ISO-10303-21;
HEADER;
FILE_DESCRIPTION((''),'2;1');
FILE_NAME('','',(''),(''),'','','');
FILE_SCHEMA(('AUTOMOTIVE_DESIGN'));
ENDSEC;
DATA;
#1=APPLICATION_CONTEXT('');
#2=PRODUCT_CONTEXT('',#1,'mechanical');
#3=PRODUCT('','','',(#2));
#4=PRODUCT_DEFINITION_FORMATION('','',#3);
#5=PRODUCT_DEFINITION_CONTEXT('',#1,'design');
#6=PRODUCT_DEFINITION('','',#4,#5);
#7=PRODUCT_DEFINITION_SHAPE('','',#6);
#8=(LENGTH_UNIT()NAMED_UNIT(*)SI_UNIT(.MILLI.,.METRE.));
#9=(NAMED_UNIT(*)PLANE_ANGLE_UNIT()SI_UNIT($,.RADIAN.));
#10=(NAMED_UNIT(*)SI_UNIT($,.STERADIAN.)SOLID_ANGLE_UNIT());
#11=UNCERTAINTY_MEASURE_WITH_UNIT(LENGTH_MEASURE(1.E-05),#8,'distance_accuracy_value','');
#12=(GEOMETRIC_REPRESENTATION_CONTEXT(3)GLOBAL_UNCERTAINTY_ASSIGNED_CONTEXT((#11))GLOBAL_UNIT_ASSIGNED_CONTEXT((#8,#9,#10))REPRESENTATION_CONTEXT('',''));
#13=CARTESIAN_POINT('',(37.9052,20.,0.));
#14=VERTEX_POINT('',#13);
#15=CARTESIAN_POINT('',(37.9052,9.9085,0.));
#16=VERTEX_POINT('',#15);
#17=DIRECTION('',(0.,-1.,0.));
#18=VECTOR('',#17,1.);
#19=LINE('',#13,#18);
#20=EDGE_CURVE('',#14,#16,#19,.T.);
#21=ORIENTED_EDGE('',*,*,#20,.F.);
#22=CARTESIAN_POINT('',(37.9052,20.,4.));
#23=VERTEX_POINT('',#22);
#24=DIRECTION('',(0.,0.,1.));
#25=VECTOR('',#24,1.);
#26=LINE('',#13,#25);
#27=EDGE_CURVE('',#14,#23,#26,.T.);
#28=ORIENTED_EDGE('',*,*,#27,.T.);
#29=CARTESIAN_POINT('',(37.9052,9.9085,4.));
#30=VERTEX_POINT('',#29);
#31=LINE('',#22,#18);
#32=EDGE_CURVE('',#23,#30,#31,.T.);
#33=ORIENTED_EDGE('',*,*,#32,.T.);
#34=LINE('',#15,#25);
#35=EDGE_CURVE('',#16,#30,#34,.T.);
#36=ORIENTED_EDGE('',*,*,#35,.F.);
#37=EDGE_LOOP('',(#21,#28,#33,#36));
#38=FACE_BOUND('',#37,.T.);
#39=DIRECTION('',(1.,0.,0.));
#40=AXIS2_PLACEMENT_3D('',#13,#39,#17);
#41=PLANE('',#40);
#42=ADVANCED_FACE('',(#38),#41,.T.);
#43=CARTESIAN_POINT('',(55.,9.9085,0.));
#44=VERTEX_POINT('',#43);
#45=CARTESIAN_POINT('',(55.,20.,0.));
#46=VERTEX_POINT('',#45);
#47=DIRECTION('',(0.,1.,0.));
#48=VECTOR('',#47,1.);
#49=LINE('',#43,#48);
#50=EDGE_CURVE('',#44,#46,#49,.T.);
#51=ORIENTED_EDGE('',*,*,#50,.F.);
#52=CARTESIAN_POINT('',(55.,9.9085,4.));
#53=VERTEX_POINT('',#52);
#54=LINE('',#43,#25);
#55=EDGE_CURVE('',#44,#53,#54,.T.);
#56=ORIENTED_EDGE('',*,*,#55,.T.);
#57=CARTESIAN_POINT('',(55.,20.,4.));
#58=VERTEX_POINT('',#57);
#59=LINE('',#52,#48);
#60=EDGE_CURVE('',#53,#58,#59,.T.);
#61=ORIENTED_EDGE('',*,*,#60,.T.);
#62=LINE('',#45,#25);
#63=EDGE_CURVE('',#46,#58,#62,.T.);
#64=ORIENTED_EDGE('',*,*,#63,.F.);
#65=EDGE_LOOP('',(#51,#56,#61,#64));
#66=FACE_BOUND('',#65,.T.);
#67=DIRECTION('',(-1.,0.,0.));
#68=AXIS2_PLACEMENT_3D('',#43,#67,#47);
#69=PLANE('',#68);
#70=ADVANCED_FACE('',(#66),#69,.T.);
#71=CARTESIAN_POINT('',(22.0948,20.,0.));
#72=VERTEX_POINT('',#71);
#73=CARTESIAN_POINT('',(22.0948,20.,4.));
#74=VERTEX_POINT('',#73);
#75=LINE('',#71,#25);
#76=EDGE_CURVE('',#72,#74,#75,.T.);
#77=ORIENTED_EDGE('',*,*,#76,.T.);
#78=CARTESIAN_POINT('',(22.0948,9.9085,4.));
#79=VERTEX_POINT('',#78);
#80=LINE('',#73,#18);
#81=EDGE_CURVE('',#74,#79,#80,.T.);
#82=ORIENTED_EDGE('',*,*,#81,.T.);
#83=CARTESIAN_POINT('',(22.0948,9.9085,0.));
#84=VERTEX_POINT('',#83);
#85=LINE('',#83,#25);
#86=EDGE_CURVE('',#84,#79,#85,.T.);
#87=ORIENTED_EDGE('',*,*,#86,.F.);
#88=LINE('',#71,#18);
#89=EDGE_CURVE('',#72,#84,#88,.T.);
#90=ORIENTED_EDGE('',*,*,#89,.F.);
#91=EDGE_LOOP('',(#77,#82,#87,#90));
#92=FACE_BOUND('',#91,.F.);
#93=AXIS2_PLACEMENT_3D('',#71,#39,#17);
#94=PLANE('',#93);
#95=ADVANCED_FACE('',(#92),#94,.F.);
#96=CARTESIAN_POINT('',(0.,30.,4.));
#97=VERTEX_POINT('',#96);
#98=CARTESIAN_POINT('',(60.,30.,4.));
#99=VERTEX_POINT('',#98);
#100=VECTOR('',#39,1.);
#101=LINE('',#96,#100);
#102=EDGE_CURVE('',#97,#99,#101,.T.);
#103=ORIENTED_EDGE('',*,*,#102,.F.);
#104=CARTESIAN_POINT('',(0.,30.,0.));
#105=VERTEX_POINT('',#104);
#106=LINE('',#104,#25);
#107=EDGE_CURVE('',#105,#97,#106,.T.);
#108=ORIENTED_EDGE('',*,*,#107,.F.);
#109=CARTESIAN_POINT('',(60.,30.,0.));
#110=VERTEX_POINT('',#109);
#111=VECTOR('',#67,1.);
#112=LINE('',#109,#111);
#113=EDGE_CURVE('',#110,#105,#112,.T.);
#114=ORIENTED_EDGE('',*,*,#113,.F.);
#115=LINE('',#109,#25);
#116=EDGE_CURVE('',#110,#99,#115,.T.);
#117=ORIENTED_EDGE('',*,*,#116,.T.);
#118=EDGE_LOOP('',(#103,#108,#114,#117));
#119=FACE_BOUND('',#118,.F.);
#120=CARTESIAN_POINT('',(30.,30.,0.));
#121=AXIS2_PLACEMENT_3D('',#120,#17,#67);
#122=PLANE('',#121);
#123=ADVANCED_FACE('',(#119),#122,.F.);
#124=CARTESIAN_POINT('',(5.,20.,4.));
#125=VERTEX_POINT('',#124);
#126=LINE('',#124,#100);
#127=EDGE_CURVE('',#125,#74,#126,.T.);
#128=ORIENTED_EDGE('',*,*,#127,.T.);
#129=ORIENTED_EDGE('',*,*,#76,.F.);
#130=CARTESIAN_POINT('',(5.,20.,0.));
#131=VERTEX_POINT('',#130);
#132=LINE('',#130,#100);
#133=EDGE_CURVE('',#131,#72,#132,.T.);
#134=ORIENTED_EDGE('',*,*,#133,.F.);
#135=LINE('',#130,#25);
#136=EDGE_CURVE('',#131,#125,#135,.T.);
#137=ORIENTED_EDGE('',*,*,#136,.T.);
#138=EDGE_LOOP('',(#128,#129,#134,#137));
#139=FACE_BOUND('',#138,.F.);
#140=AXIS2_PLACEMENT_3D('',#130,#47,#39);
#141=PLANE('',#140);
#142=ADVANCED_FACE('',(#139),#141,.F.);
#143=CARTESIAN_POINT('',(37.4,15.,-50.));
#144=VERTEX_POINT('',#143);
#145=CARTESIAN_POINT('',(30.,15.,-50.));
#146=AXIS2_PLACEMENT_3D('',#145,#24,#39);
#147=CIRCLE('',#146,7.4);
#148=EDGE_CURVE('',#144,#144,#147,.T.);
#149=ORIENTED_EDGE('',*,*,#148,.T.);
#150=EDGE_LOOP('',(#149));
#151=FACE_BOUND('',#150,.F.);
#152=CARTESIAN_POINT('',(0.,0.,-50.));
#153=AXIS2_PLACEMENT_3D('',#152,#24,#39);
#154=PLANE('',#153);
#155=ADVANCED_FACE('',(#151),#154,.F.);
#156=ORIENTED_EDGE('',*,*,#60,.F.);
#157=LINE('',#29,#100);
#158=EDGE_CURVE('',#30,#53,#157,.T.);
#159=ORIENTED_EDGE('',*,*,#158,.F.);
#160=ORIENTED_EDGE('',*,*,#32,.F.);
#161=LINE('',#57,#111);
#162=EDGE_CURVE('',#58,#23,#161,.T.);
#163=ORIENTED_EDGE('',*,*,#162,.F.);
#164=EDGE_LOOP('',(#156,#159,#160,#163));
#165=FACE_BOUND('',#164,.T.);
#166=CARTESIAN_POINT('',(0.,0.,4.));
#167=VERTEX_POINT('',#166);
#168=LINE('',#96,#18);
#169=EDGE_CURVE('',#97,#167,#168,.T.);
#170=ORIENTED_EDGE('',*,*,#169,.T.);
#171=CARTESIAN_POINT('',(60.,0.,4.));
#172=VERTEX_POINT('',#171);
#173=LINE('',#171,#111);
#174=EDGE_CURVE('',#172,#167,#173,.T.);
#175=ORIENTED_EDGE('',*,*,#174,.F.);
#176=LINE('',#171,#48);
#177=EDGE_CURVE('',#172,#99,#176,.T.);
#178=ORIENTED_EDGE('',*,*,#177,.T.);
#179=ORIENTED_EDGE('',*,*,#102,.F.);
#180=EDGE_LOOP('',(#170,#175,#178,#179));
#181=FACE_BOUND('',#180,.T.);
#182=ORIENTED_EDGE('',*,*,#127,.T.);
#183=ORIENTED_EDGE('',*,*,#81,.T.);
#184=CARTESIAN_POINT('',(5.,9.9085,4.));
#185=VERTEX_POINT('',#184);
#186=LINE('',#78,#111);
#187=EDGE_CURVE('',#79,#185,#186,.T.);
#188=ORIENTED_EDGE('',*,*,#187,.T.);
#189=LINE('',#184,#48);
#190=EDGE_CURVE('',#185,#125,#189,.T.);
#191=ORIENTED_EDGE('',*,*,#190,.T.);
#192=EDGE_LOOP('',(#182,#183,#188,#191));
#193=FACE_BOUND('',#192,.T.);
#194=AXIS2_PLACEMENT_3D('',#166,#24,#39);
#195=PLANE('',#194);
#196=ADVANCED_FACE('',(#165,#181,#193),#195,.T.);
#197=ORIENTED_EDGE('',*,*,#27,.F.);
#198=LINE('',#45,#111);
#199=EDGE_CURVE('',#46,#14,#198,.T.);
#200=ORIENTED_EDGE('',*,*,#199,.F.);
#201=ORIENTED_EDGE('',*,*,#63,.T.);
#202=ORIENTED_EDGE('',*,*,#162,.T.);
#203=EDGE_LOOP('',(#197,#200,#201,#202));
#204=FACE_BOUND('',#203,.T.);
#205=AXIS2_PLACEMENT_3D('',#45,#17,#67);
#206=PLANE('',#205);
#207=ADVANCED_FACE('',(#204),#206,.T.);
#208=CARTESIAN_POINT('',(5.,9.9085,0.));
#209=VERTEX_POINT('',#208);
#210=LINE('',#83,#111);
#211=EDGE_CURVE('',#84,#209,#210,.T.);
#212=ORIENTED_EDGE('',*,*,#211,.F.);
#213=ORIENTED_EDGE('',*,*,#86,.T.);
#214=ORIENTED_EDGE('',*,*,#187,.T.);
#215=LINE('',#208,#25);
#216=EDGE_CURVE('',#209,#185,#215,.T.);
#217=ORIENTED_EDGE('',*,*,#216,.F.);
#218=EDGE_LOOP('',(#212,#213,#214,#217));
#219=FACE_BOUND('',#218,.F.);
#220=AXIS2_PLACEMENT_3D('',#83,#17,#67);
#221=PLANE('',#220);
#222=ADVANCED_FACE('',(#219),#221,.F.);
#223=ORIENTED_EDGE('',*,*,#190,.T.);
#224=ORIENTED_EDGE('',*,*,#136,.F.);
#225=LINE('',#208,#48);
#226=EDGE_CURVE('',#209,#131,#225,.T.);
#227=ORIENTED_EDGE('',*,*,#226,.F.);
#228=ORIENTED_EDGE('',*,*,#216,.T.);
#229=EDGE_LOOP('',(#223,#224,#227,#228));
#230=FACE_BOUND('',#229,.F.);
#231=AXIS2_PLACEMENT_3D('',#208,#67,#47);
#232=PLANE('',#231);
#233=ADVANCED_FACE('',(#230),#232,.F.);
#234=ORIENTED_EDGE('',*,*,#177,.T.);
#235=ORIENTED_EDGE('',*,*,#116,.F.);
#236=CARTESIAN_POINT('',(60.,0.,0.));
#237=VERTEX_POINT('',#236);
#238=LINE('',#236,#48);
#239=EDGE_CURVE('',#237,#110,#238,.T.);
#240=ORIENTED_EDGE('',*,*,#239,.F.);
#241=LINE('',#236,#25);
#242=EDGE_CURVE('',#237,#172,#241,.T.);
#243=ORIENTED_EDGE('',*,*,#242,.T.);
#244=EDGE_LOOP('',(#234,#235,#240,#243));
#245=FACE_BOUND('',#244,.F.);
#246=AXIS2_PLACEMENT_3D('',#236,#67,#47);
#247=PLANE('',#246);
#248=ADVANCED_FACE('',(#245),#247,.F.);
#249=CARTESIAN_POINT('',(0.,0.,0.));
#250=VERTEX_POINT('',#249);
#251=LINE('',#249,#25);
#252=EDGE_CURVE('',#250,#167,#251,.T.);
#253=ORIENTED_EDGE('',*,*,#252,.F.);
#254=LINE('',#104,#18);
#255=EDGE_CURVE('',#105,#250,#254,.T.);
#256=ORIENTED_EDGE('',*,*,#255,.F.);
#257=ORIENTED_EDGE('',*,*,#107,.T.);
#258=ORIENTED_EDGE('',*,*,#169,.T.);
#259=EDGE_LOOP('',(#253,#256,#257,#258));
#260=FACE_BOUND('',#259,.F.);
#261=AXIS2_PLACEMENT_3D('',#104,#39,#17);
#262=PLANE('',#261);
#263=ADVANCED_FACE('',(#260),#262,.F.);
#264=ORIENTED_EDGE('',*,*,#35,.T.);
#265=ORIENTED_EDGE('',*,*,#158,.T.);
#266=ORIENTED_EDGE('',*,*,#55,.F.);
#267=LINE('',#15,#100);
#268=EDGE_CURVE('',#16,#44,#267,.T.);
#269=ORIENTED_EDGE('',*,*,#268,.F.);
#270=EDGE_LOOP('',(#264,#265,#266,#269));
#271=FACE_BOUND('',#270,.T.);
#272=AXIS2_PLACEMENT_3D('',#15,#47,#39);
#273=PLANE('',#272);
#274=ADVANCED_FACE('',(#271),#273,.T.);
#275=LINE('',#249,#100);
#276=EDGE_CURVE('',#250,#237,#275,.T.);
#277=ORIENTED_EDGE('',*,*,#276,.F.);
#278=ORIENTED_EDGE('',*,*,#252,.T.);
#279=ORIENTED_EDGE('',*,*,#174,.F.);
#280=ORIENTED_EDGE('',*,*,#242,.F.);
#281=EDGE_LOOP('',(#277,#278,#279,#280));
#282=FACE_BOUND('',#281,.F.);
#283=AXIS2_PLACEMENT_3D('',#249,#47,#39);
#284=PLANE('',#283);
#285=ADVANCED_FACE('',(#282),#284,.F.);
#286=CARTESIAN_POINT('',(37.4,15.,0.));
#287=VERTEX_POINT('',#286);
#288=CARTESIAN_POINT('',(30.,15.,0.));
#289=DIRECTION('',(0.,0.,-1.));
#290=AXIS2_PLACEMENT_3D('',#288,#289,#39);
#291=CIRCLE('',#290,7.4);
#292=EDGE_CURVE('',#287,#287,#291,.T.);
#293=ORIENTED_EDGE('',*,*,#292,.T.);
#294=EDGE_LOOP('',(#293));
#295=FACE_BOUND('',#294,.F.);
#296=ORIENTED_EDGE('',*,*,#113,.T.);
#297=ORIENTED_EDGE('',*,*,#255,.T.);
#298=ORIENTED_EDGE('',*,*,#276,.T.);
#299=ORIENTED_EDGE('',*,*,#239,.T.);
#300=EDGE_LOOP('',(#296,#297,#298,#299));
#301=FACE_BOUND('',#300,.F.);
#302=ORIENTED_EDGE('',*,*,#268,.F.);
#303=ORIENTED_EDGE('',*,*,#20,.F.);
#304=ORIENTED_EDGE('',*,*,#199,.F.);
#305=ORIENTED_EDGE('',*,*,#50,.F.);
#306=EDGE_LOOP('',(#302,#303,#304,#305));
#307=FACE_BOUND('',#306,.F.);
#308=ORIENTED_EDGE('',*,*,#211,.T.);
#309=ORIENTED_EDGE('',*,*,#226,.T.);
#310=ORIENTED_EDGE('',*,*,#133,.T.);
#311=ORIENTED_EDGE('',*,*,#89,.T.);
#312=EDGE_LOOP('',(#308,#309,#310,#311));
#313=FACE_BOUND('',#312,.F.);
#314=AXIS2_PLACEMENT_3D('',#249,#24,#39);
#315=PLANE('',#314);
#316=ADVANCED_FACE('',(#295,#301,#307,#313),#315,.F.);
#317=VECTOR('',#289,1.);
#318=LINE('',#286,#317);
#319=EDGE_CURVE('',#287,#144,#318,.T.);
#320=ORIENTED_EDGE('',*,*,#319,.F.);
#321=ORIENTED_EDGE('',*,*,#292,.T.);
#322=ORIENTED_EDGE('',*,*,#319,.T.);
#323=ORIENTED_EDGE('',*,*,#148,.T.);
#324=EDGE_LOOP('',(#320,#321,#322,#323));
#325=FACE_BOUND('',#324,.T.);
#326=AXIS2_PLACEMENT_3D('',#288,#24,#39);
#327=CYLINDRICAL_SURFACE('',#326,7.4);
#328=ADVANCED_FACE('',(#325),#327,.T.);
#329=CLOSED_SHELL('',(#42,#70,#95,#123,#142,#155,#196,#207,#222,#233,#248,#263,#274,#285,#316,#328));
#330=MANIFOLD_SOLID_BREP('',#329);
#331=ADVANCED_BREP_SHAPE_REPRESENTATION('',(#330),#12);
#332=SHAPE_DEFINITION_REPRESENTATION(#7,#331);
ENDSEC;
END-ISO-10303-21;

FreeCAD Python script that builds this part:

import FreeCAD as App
import Part
import Sketcher
from FreeCAD import Vector

doc = App.newDocument("Part")
body = doc.addObject("PartDesign::Body", "Body")

# Sketch on XY plane
sketch1 = body.newObject("Sketcher::SketchObject", "Sketch")
sketch1.AttachmentSupport = (doc.getObject("XY_Plane"), [""])
sketch1.MapMode = "FlatFace"
sketch1.addGeometry(Part.LineSegment(Vector(0, 30, 0), Vector(0, 0, 0)), False)
sketch1.addGeometry(Part.LineSegment(Vector(0, 0, 0), Vector(60, 0, 0)), False)
sketch1.addGeometry(Part.LineSegment(Vector(60, 0, 0), Vector(60, 30, 0)), False)
sketch1.addGeometry(Part.LineSegment(Vector(60, 30, 0), Vector(0, 30, 0)), False)
sketch1.addGeometry(Part.LineSegment(Vector(5, 9.9085, 0), Vector(5, 20, 0)), False)
sketch1.addGeometry(Part.LineSegment(Vector(5, 20, 0), Vector(22.0948, 20, 0)), False)
sketch1.addGeometry(Part.LineSegment(Vector(22.0948, 20, 0), Vector(22.0948, 9.9085, 0)), False)
sketch1.addGeometry(Part.LineSegment(Vector(22.0948, 9.9085, 0), Vector(5, 9.9085, 0)), False)
sketch1.addGeometry(Part.LineSegment(Vector(37.9052, 9.9085, 0), Vector(37.9052, 20, 0)), False)
sketch1.addGeometry(Part.LineSegment(Vector(37.9052, 20, 0), Vector(55, 20, 0)), False)
sketch1.addGeometry(Part.LineSegment(Vector(55, 20, 0), Vector(55, 9.9085, 0)), False)
sketch1.addGeometry(Part.LineSegment(Vector(55, 9.9085, 0), Vector(37.9052, 9.9085, 0)), False)
sketch1.addConstraint(Sketcher.Constraint("Coincident", 0, 2, 1, 1))
sketch1.addConstraint(Sketcher.Constraint("Coincident", 1, 2, 2, 1))
sketch1.addConstraint(Sketcher.Constraint("Coincident", 2, 2, 3, 1))
sketch1.addConstraint(Sketcher.Constraint("Coincident", 3, 2, 0, 1))
sketch1.addConstraint(Sketcher.Constraint("Coincident", 4, 2, 5, 1))
sketch1.addConstraint(Sketcher.Constraint("Coincident", 5, 2, 6, 1))
sketch1.addConstraint(Sketcher.Constraint("Coincident", 6, 2, 7, 1))
sketch1.addConstraint(Sketcher.Constraint("Coincident", 7, 2, 4, 1))
sketch1.addConstraint(Sketcher.Constraint("Coincident", 8, 2, 9, 1))
sketch1.addConstraint(Sketcher.Constraint("Coincident", 9, 2, 10, 1))
sketch1.addConstraint(Sketcher.Constraint("Coincident", 10, 2, 11, 1))
sketch1.addConstraint(Sketcher.Constraint("Coincident", 11, 2, 8, 1))
sketch1.addConstraint(Sketcher.Constraint("Vertical", 0))
sketch1.addConstraint(Sketcher.Constraint("Horizontal", 1))
sketch1.addConstraint(Sketcher.Constraint("Vertical", 2))
sketch1.addConstraint(Sketcher.Constraint("Horizontal", 3))
sketch1.addConstraint(Sketcher.Constraint("Vertical", 4))
sketch1.addConstraint(Sketcher.Constraint("Horizontal", 5))
sketch1.addConstraint(Sketcher.Constraint("Vertical", 6))
sketch1.addConstraint(Sketcher.Constraint("Horizontal", 7))
sketch1.addConstraint(Sketcher.Constraint("Vertical", 8))
sketch1.addConstraint(Sketcher.Constraint("Horizontal", 9))
sketch1.addConstraint(Sketcher.Constraint("Vertical", 10))
sketch1.addConstraint(Sketcher.Constraint("Horizontal", 11))
sketch1.addConstraint(Sketcher.Constraint("Coincident", 0, 2, -1, 1))
sketch1.addConstraint(Sketcher.Constraint("Horizontal", 5, 2, 8, 2))
sketch1.addConstraint(Sketcher.Constraint("Horizontal", 7, 2, 10, 2))
sketch1.addConstraint(Sketcher.Constraint("Equal", 7, 9))
sketch1.addConstraint(Sketcher.Constraint("DistanceX", 1, 1, 1, 2, 60.0))
sketch1.addConstraint(Sketcher.Constraint("DistanceY", 0, 2, 0, 1, 30.0))
sketch1.addConstraint(Sketcher.Constraint("DistanceX", -1, 1, 4, 2, 5.0))
sketch1.addConstraint(Sketcher.Constraint("DistanceY", -1, 1, 4, 2, 20.0))
sketch1.addConstraint(Sketcher.Constraint("DistanceX", -1, 1, 9, 2, 55.0))
sketch1.addConstraint(Sketcher.Constraint("DistanceX", 5, 1, 5, 2, 17.0948))
sketch1.addConstraint(Sketcher.Constraint("DistanceY", 4, 1, 4, 2, 10.0915))
pad1 = body.newObject("PartDesign::Pad", "Pad")
pad1.Profile = sketch1
pad1.Length = 4

# Sketch on XY plane
sketch2 = body.newObject("Sketcher::SketchObject", "Sketch001")
sketch2.AttachmentSupport = (doc.getObject("XY_Plane"), [""])
sketch2.MapMode = "FlatFace"
sketch2.addGeometry(Part.Circle(Vector(30, 15, 0), Vector(0, 0, 1), 7.4), False)
sketch2.addConstraint(Sketcher.Constraint("Diameter", 0, 14.8))
sketch2.addConstraint(Sketcher.Constraint("DistanceX", -1, 1, 0, 3, 30.0))
sketch2.addConstraint(Sketcher.Constraint("DistanceY", -1, 1, 0, 3, 15.0))
pad2 = body.newObject("PartDesign::Pad", "Pad001")
pad2.Profile = sketch2
pad2.Length = 50
pad2.Reversed = True

doc.recompute()
